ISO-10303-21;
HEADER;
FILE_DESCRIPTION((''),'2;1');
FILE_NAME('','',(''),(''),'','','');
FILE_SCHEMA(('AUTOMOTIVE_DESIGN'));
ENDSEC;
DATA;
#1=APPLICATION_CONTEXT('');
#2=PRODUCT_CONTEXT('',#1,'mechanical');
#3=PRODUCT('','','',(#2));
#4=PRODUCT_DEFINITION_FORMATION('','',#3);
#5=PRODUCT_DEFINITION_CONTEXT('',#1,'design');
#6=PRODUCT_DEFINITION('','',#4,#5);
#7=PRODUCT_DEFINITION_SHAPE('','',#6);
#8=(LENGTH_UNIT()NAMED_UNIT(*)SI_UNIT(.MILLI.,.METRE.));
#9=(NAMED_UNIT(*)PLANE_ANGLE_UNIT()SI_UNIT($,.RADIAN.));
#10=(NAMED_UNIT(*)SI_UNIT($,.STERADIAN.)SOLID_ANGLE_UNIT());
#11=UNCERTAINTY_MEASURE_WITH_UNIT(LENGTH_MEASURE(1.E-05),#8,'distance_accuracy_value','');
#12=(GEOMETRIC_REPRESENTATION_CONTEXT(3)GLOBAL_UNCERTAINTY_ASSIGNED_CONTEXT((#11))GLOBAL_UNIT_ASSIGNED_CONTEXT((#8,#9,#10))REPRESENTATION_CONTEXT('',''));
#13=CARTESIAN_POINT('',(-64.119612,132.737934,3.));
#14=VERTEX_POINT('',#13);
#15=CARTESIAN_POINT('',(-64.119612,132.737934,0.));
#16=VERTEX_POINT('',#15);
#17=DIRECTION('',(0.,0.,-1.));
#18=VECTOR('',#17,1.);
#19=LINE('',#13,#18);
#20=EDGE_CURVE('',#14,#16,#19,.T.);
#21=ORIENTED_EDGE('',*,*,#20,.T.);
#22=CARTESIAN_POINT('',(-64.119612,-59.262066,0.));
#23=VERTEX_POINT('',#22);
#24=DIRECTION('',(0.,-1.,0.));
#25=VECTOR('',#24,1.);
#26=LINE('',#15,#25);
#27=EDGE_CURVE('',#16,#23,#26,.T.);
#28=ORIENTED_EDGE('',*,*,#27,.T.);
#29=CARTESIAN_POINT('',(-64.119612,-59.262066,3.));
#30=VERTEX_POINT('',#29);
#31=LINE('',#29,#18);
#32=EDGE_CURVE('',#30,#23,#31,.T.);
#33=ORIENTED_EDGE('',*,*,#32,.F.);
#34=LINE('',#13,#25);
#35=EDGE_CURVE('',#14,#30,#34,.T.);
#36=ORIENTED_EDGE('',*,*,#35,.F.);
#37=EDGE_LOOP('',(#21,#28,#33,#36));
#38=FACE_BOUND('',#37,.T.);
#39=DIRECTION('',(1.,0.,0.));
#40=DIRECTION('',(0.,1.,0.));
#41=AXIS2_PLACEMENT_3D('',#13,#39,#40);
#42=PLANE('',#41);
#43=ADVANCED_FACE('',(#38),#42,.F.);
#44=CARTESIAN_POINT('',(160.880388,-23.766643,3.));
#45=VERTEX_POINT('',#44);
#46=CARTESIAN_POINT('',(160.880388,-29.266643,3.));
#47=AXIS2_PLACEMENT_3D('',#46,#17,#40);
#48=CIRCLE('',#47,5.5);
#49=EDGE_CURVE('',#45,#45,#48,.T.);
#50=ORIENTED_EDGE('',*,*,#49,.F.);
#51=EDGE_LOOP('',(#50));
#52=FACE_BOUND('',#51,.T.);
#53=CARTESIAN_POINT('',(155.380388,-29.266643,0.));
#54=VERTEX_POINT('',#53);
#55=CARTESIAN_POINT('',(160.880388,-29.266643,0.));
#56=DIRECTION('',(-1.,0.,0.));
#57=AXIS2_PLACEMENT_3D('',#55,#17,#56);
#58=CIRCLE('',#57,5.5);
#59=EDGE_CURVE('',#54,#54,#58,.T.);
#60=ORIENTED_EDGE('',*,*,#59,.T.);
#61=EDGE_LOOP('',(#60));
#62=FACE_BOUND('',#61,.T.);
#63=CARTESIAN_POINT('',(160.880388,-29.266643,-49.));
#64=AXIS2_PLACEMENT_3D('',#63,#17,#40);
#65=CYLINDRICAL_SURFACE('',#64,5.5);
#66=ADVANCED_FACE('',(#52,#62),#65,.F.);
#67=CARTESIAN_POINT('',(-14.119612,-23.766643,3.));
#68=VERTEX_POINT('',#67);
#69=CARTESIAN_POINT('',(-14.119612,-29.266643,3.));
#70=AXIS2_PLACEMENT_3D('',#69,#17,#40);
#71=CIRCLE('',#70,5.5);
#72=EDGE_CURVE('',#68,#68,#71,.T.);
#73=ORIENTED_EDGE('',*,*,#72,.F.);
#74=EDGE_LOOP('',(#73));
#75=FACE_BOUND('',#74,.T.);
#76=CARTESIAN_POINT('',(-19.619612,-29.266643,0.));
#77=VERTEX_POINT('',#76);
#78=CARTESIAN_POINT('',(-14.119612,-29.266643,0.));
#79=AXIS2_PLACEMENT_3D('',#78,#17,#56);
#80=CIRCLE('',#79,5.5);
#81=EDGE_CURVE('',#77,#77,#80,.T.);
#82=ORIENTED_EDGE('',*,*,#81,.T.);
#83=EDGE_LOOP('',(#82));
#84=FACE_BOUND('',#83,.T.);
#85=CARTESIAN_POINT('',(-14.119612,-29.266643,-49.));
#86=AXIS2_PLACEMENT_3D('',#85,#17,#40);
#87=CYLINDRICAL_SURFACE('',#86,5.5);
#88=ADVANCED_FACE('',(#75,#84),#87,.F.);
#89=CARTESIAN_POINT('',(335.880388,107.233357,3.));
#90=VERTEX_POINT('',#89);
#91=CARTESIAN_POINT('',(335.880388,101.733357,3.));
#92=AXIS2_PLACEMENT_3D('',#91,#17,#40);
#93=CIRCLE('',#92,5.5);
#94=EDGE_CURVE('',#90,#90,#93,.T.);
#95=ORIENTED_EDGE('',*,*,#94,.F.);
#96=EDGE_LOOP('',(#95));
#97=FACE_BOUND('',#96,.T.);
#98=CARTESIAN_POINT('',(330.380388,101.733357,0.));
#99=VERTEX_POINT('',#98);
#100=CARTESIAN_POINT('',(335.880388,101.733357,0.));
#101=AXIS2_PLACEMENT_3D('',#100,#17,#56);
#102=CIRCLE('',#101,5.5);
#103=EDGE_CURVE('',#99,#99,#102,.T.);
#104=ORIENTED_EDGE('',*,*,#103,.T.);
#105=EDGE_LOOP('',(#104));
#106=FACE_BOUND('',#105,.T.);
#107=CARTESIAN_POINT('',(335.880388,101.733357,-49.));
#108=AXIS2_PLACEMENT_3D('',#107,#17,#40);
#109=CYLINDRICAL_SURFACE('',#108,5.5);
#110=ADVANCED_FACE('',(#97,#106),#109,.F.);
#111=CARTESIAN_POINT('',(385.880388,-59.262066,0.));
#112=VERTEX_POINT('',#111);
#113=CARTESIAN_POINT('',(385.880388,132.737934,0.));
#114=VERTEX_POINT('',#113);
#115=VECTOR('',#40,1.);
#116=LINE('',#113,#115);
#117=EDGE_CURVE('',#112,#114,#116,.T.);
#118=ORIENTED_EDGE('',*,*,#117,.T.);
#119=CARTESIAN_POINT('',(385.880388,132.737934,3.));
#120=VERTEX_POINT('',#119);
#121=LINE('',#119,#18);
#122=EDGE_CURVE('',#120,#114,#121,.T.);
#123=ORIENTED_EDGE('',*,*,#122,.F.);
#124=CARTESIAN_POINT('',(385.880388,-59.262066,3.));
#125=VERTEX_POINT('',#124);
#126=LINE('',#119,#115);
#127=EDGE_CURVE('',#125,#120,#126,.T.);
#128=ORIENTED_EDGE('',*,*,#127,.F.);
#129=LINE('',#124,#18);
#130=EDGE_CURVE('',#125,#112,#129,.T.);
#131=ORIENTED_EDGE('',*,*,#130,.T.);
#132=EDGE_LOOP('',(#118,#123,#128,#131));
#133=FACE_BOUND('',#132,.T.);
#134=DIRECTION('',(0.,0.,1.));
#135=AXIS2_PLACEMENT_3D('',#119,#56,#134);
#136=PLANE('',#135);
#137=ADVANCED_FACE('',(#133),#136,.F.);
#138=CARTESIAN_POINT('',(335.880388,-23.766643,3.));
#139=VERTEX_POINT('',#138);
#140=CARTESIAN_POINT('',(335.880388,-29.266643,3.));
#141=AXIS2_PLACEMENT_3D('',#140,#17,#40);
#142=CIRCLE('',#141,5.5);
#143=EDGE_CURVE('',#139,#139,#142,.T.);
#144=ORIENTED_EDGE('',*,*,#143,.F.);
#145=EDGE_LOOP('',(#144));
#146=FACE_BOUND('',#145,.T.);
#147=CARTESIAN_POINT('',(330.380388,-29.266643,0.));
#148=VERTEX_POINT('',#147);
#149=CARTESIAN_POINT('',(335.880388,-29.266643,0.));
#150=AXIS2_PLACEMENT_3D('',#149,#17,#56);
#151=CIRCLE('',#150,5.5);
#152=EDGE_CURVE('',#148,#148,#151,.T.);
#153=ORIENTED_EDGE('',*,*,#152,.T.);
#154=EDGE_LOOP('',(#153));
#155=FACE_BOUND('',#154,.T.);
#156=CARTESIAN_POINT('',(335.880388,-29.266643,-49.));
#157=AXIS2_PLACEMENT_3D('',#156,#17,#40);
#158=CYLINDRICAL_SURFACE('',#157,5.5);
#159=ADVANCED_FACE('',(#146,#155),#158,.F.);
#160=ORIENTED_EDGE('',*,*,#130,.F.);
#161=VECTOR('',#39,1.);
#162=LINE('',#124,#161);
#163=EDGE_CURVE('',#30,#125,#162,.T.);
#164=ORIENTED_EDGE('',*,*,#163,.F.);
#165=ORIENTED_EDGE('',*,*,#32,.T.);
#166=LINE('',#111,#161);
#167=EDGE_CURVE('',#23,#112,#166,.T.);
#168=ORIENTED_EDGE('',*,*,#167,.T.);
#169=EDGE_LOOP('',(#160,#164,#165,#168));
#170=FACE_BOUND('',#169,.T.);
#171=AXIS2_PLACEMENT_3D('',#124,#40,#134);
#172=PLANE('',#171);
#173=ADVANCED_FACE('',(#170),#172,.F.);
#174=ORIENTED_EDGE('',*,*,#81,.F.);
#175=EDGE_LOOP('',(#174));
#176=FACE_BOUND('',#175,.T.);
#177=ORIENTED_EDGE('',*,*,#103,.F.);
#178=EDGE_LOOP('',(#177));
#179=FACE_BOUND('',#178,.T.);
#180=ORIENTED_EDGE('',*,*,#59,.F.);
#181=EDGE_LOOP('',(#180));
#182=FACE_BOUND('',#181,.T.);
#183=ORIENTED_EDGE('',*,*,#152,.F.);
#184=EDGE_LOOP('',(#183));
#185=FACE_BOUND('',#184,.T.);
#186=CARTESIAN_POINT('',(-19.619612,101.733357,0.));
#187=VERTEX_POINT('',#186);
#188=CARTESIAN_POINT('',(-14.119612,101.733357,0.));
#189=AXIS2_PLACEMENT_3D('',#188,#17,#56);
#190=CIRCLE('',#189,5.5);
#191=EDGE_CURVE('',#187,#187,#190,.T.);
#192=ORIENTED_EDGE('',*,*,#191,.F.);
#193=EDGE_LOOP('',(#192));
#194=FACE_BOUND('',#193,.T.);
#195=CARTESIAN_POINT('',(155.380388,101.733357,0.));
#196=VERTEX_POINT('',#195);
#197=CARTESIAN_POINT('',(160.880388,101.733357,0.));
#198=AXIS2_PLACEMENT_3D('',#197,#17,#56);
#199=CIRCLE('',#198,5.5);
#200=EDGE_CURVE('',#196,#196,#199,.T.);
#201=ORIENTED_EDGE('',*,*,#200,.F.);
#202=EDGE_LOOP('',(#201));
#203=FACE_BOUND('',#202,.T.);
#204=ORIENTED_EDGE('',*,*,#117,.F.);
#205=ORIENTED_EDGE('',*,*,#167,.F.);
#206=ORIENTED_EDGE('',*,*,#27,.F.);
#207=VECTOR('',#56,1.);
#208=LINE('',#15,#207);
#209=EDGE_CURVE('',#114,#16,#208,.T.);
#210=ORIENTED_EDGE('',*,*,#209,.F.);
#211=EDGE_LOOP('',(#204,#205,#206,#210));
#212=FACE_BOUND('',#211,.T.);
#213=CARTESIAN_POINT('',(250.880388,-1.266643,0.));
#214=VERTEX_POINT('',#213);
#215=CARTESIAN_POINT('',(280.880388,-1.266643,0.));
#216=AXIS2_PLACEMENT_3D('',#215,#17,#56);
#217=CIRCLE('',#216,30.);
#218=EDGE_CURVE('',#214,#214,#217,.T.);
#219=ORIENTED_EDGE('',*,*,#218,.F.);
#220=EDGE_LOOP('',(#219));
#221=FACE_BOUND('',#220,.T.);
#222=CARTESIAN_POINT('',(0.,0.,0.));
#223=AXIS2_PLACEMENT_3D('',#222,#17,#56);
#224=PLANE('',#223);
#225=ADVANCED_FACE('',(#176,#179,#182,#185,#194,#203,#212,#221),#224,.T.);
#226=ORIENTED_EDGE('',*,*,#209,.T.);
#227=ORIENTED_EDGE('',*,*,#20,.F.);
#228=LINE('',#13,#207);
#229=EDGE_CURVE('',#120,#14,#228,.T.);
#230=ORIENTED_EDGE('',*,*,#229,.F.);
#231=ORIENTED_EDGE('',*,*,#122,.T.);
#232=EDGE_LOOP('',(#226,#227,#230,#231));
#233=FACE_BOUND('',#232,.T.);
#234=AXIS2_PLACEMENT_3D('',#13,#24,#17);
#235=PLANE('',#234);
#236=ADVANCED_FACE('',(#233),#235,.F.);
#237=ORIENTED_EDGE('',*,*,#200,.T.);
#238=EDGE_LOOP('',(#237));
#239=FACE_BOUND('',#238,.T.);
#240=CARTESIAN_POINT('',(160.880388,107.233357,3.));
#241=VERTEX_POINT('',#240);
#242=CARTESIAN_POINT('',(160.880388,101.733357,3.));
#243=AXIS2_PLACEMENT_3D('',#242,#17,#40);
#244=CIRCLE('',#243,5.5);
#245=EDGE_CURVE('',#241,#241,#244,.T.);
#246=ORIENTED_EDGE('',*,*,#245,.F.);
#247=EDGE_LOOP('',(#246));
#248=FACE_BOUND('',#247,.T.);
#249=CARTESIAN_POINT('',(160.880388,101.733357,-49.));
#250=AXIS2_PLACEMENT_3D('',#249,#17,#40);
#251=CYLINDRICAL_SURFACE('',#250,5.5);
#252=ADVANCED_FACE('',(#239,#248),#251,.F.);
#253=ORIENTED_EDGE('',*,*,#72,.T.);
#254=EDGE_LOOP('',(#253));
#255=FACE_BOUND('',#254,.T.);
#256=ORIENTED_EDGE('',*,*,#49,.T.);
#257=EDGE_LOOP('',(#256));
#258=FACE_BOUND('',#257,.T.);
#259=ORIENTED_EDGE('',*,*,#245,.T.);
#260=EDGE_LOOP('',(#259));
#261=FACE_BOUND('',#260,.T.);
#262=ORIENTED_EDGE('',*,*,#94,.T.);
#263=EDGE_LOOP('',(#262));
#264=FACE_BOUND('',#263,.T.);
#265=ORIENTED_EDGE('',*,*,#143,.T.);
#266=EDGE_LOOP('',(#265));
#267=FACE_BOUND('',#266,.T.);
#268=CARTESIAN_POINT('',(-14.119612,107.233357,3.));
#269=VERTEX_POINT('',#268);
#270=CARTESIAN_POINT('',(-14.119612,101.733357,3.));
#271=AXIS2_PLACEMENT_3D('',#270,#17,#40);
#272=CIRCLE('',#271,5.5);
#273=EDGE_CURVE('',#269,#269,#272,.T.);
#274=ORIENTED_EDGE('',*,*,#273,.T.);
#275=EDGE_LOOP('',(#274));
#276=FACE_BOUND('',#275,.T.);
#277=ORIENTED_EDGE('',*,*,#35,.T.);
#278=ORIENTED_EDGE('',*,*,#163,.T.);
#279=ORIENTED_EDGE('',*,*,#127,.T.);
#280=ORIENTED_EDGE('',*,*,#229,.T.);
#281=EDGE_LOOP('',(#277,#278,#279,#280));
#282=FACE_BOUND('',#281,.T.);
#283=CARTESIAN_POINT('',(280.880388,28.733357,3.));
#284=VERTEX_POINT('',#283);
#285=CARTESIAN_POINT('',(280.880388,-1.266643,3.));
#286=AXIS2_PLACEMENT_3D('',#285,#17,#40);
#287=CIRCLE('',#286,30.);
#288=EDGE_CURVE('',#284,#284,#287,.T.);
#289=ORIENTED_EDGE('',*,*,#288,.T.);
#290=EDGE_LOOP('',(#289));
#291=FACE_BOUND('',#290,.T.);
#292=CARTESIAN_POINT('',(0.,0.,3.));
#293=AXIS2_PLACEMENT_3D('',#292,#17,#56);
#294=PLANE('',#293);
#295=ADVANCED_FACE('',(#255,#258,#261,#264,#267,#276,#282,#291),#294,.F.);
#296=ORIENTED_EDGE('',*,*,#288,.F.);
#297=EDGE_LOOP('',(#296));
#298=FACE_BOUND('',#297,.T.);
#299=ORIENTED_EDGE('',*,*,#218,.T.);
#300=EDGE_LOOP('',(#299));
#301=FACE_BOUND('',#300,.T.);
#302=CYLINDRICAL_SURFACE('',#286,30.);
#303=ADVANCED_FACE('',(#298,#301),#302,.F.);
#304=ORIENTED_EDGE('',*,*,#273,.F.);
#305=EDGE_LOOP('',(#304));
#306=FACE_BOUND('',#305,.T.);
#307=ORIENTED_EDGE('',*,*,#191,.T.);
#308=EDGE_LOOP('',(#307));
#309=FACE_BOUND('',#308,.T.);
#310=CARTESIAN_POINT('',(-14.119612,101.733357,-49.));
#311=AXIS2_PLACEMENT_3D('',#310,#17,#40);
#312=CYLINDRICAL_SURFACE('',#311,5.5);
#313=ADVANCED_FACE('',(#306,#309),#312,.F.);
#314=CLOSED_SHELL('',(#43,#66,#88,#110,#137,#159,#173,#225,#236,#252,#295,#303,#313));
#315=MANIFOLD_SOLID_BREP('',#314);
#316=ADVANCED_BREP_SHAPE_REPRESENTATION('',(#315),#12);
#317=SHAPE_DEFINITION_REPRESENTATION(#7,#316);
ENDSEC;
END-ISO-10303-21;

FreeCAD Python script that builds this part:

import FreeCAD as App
import Part
import Sketcher
from FreeCAD import Vector


def add_polygon(sketch, points):
    """Adds a closed chain of lines whose ends are joined by coincident constraints."""
    first, n = sketch.GeometryCount, len(points)
    for a, b in zip(points, points[1:] + points[:1]):
        sketch.addGeometry(Part.LineSegment(App.Vector(*a, 0), App.Vector(*b, 0)), False)
    for i in range(n):
        sketch.addConstraint(Sketcher.Constraint("Coincident", first + i, 2, first + (i + 1) % n, 1))

doc = App.newDocument("Part")
params = doc.addObject("Spreadsheet::Sheet", "Params")
for row, (alias, value) in enumerate([
    ("sketch1_width", "450 mm"),
    ("sketch1_height", "192 mm"),
    ("pad1_length", "3 mm"),
    ("sketch2_diameter", "60 mm"),
    ("sketch3_diameter", "11 mm"),
    ("hole_diameter", "11 mm"),
], start=1):
    params.set(f"A{row}", alias)
    params.set(f"B{row}", "=" + value)
    params.setAlias(f"B{row}", alias)

body = doc.addObject("PartDesign::Body", "Body")

# Sketch on XY plane
sketch1 = body.newObject("Sketcher::SketchObject", "Sketch")
sketch1.AttachmentSupport = (doc.getObject("XY_Plane"), [""])
sketch1.MapMode = "FlatFace"
add_polygon(sketch1, [(-64, 133), (-64, -59), (386, -59), (386, 133)])  # lines 0-3
sketch1.addConstraint(Sketcher.Constraint("Vertical", 0))
sketch1.addConstraint(Sketcher.Constraint("Horizontal", 1))
sketch1.addConstraint(Sketcher.Constraint("Vertical", 2))
sketch1.addConstraint(Sketcher.Constraint("Horizontal", 3))
sketch1.addConstraint(Sketcher.Constraint("DistanceX", 1, 1, 1, 2, 450.0))
sketch1.addConstraint(Sketcher.Constraint("DistanceY", 0, 2, 0, 1, 192.0))
sketch1.addConstraint(Sketcher.Constraint("DistanceX", 0, 2, -1, 1, 64.119612))
sketch1.addConstraint(Sketcher.Constraint("DistanceY", 0, 2, -1, 1, 59.262066))
sketch1.setExpression("Constraints[8]", "Params.sketch1_width")
sketch1.setExpression("Constraints[9]", "Params.sketch1_height")
pad1 = body.newObject("PartDesign::Pad", "Pad")
pad1.Profile = sketch1
pad1.setExpression("Length", "Params.pad1_length")

# Sketch on XY plane
sketch2 = body.newObject("Sketcher::SketchObject", "Sketch001")
sketch2.AttachmentSupport = (doc.getObject("XY_Plane"), [""])
sketch2.MapMode = "FlatFace"
sketch2.AttachmentOffset = App.Placement(Vector(0, 0, -49), App.Rotation())
sketch2.addGeometry(Part.Circle(Vector(281, -1, 0), Vector(0, 0, 1), 30), False)
sketch2.addConstraint(Sketcher.Constraint("Diameter", 0, 60.0))
sketch2.addConstraint(Sketcher.Constraint("DistanceX", -1, 1, 0, 3, 280.880388))
sketch2.addConstraint(Sketcher.Constraint("DistanceY", 0, 3, -1, 1, 1.266643))
sketch2.setExpression("Constraints[0]", "Params.sketch2_diameter")
pocket1 = body.newObject("PartDesign::Pocket", "Pocket")
pocket1.Profile = sketch2
pocket1.Type = "ThroughAll"
pocket1.Reversed = True

# Sketch on XY plane
sketch3 = body.newObject("Sketcher::SketchObject", "Sketch002")
sketch3.AttachmentSupport = (doc.getObject("XY_Plane"), [""])
sketch3.MapMode = "FlatFace"
sketch3.AttachmentOffset = App.Placement(Vector(0, 0, -49), App.Rotation())
sketch3.addGeometry(Part.Circle(Vector(336, 102, 0), Vector(0, 0, 1), 6), False)
sketch3.addGeometry(Part.Circle(Vector(161, 102, 0), Vector(0, 0, 1), 6), False)
sketch3.addGeometry(Part.Circle(Vector(-14, 102, 0), Vector(0, 0, 1), 6), False)
sketch3.addGeometry(Part.Circle(Vector(-14, -29, 0), Vector(0, 0, 1), 6), False)
sketch3.addGeometry(Part.Circle(Vector(161, -29, 0), Vector(0, 0, 1), 6), False)
sketch3.addGeometry(Part.Circle(Vector(336, -29, 0), Vector(0, 0, 1), 6), False)
sketch3.addConstraint(Sketcher.Constraint("Equal", 0, 1))
sketch3.addConstraint(Sketcher.Constraint("Equal", 1, 2))
sketch3.addConstraint(Sketcher.Constraint("Equal", 2, 3))
sketch3.addConstraint(Sketcher.Constraint("Equal", 3, 4))
sketch3.addConstraint(Sketcher.Constraint("Equal", 4, 5))
sketch3.addConstraint(Sketcher.Constraint("Horizontal", 0, 3, 1, 3))
sketch3.addConstraint(Sketcher.Constraint("Horizontal", 1, 3, 2, 3))
sketch3.addConstraint(Sketcher.Constraint("Horizontal", 3, 3, 4, 3))
sketch3.addConstraint(Sketcher.Constraint("Horizontal", 4, 3, 5, 3))
sketch3.addConstraint(Sketcher.Constraint("Vertical", 2, 3, 3, 3))
sketch3.addConstraint(Sketcher.Constraint("Vertical", 1, 3, 4, 3))
sketch3.addConstraint(Sketcher.Constraint("Vertical", 0, 3, 5, 3))
sketch3.addConstraint(Sketcher.Constraint("Diameter", 0, 11.0))
sketch3.addConstraint(Sketcher.Constraint("DistanceX", 1, 3, 0, 3, 175.0))
sketch3.addConstraint(Sketcher.Constraint("DistanceX", 2, 3, 1, 3, 175.0))
sketch3.addConstraint(Sketcher.Constraint("DistanceY", 3, 3, 2, 3, 131.0))
sketch3.addConstraint(Sketcher.Constraint("DistanceX", -1, 1, 0, 3, 335.880388))
sketch3.addConstraint(Sketcher.Constraint("DistanceY", -1, 1, 0, 3, 101.733357))
sketch3.setExpression("Constraints[12]", "Params.sketch3_diameter")
doc.recompute()
hole = body.newObject("PartDesign::Hole", "Hole")
hole.Profile = sketch3
hole.ThreadType = "None"
hole.setExpression("Diameter", "Params.hole_diameter")
hole.DepthType = "ThroughAll"
hole.Reversed = True

doc.recompute()
